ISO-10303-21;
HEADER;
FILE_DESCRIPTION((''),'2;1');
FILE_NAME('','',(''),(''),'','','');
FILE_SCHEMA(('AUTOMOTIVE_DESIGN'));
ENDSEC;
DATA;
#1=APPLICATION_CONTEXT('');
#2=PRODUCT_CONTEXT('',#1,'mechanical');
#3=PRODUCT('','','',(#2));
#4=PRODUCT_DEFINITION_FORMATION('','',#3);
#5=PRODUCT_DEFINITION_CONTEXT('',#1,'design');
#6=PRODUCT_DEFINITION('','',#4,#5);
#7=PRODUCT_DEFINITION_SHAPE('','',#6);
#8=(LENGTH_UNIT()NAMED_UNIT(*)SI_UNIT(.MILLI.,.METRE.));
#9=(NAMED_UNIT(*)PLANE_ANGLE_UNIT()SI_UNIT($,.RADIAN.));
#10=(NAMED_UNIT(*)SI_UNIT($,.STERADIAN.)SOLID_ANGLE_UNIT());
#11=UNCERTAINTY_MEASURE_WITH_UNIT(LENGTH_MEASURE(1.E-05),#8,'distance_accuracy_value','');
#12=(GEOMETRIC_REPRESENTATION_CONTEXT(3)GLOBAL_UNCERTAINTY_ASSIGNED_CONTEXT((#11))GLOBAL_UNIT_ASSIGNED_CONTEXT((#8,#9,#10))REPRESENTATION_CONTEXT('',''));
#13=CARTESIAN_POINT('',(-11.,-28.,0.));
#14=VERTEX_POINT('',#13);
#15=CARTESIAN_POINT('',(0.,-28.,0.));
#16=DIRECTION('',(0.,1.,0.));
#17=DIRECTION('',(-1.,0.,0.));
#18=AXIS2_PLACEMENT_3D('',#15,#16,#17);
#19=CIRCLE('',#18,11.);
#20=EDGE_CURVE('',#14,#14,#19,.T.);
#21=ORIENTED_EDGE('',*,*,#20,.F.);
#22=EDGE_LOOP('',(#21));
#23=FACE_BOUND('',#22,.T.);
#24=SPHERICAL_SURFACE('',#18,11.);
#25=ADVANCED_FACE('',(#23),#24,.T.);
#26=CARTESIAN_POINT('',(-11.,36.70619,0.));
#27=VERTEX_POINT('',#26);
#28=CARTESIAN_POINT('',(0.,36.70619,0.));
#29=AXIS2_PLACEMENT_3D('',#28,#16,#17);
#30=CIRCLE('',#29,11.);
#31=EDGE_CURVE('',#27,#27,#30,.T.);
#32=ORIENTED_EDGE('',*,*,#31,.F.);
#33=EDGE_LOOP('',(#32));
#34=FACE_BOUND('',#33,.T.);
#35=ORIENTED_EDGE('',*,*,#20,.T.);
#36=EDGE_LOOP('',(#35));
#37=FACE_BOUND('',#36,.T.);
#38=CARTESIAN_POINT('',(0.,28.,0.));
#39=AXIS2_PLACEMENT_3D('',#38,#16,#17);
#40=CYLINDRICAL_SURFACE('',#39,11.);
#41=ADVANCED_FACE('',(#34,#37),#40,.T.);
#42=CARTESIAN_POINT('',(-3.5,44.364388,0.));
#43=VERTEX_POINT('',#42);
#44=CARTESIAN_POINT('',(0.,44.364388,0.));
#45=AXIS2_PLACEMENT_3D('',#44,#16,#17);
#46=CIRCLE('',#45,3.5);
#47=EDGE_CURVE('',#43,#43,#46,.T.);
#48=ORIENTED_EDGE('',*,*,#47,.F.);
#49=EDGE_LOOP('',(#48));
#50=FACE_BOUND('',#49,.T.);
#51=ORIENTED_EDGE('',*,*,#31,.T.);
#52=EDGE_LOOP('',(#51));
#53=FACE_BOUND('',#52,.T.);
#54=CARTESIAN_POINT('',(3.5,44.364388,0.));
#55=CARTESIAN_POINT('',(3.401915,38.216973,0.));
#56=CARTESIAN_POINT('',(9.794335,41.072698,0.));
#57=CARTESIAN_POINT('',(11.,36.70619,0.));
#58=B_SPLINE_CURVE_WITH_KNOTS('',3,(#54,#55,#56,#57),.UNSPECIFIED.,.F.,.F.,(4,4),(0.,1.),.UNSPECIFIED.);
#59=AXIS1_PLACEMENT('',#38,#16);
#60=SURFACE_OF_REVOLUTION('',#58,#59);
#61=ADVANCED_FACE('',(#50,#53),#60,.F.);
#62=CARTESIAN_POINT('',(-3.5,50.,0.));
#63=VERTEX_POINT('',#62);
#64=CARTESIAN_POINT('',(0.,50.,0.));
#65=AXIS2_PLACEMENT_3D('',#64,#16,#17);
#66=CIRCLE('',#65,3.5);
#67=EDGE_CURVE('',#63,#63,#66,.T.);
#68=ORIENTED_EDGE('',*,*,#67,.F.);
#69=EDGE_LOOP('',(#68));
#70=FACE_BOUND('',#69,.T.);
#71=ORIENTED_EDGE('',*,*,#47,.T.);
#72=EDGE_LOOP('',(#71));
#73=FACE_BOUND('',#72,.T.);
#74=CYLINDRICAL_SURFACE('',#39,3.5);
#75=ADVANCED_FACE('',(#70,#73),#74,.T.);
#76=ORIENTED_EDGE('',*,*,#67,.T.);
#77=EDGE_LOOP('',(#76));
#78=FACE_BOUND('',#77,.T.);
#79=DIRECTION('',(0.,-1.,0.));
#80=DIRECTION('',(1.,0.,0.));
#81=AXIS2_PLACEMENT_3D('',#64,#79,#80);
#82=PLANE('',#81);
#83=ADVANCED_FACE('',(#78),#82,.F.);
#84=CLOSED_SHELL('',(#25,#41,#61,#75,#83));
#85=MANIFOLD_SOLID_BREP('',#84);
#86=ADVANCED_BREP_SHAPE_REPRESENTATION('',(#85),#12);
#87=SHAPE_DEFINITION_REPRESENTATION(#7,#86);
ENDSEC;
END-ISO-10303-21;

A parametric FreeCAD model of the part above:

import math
import FreeCAD as App
import Part
import Sketcher
from FreeCAD import Vector
Q = App.Units.Quantity

doc = App.newDocument("Part")
body = doc.addObject("PartDesign::Body", "Body")

sketch1 = body.newObject("Sketcher::SketchObject", "Sketch")
sketch1.AttachmentSupport = (doc.getObject("XY_Plane"), [""])
sketch1.MapMode = "FlatFace"
sketch1.addGeometry([
    Part.ArcOfCircle(Part.Circle(Vector(0, -28, 0), Vector(0, 0, 1), 11), math.radians(-90), math.radians(0)),
    Part.LineSegment(Vector(11, -28, 0), Vector(11, 36.70619, 0)),
    Part.BSplineCurve([Vector(9.085975, 39, 0), Vector(9.952668, 38.554296, 0), Vector(10.670285, 37.900307, 0), Vector(11, 36.70619, 0)], [4, 4], [0.726528094, 1], False, 3, [1, 1, 1, 1], False),
    Part.BSplineCurve([Vector(3.5, 44.089341, 0), Vector(3.569121, 39.909477, 0), Vector(6.831781, 40.159237, 0), Vector(9.085975, 39, 0)], [4, 4], [0.015251506, 0.726528094], False, 3, [1, 1, 1, 1], False),
    Part.BSplineCurve([Vector(3.5, 44.364388, 0), Vector(3.498504, 44.27063, 0), Vector(3.498518, 44.178967, 0), Vector(3.5, 44.089341, 0)], [4, 4], [0, 0.015251506], False, 3, [1, 1, 1, 1], False),
    Part.LineSegment(Vector(3.5, 44.364388, 0), Vector(3.5, 50, 0)),
    Part.LineSegment(Vector(3.5, 50, 0), Vector(0, 50, 0)),
    Part.LineSegment(Vector(0, 50, 0), Vector(0, -39, 0)),
], False)
sketch1.addConstraint([
    Sketcher.Constraint("Block", 2),
    Sketcher.Constraint("Block", 3),
    Sketcher.Constraint("Block", 4),
    Sketcher.Constraint("Tangent", 0, 2, 1, 1),
    Sketcher.Constraint("Coincident", 1, 2, 2, 2),
    Sketcher.Constraint("Coincident", 4, 1, 5, 1),
    Sketcher.Constraint("Coincident", 5, 2, 6, 1),
    Sketcher.Constraint("Coincident", 6, 2, 7, 1),
    Sketcher.Constraint("Coincident", 7, 2, 0, 1),
    Sketcher.Constraint("Vertical", 1),
    Sketcher.Constraint("Vertical", 5),
    Sketcher.Constraint("Horizontal", 6),
    Sketcher.Constraint("Vertical", 7),
    Sketcher.Constraint("PointOnObject", 0, 3, -2),
    Sketcher.Constraint("PointOnObject", 6, 2, -2),
    Sketcher.Constraint("DistanceY", 7, 2, 7, 1, Q("89 mm")),
    Sketcher.Constraint("DistanceY", 0, 3, -1, 1, Q("28 mm")),
])
revolution = body.newObject("PartDesign::Revolution", "Revolution")
revolution.Profile = sketch1
revolution.ReferenceAxis = (sketch1, ["V_Axis"])
revolution.Angle = 360

doc.recompute()
